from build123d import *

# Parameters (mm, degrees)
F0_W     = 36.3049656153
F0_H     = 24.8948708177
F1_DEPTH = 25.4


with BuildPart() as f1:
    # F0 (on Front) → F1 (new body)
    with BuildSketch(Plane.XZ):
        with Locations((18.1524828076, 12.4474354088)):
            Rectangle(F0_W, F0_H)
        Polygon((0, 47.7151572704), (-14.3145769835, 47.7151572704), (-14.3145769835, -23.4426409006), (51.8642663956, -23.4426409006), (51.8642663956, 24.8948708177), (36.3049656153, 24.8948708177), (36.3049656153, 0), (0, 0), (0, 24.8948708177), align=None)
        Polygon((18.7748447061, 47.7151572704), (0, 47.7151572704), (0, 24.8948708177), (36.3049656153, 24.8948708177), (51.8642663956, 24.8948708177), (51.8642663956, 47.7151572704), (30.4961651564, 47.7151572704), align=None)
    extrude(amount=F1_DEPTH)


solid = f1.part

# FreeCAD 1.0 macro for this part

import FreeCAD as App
import Part
import Sketcher
Q = App.Units.Quantity

doc = App.newDocument("Part")
body = doc.addObject("PartDesign::Body", "Body")

# Sketch on XZ plane
sketch1 = doc.addObject("Sketcher::SketchObject", "Sketch")
body.addObject(sketch1)
sketch1.AttachmentSupport = (doc.XZ_Plane, [""])
sketch1.MapMode = "FlatFace"
sketch1.addGeometry([
    Part.LineSegment(App.Vector(-14, 48, 0), App.Vector(-14, -23, 0)),
    Part.LineSegment(App.Vector(-14, -23, 0), App.Vector(52, -23, 0)),
    Part.LineSegment(App.Vector(52, -23, 0), App.Vector(52, 48, 0)),
    Part.LineSegment(App.Vector(52, 48, 0), App.Vector(-14, 48, 0)),
], False)
sketch1.addConstraint([
    Sketcher.Constraint("Coincident", 0, 2, 1, 1),
    Sketcher.Constraint("Coincident", 1, 2, 2, 1),
    Sketcher.Constraint("Coincident", 2, 2, 3, 1),
    Sketcher.Constraint("Coincident", 3, 2, 0, 1),
    Sketcher.Constraint("Vertical", 0),
    Sketcher.Constraint("Horizontal", 1),
    Sketcher.Constraint("Vertical", 2),
    Sketcher.Constraint("Horizontal", 3),
    Sketcher.Constraint("DistanceY", 0, 2, 0, 1, 71.157798),
    Sketcher.Constraint("DistanceX", 1, 1, 1, 2, 66.178843),
    Sketcher.Constraint("DistanceY", 0, 2, -1, 1, 23.442641),
    Sketcher.Constraint("DistanceX", 0, 2, -1, 1, 14.314577),
])
pad1 = doc.addObject("PartDesign::Pad", "Pad")
body.addObject(pad1)
pad1.Profile = sketch1
pad1.Length = Q("1 in")

doc.recompute()
